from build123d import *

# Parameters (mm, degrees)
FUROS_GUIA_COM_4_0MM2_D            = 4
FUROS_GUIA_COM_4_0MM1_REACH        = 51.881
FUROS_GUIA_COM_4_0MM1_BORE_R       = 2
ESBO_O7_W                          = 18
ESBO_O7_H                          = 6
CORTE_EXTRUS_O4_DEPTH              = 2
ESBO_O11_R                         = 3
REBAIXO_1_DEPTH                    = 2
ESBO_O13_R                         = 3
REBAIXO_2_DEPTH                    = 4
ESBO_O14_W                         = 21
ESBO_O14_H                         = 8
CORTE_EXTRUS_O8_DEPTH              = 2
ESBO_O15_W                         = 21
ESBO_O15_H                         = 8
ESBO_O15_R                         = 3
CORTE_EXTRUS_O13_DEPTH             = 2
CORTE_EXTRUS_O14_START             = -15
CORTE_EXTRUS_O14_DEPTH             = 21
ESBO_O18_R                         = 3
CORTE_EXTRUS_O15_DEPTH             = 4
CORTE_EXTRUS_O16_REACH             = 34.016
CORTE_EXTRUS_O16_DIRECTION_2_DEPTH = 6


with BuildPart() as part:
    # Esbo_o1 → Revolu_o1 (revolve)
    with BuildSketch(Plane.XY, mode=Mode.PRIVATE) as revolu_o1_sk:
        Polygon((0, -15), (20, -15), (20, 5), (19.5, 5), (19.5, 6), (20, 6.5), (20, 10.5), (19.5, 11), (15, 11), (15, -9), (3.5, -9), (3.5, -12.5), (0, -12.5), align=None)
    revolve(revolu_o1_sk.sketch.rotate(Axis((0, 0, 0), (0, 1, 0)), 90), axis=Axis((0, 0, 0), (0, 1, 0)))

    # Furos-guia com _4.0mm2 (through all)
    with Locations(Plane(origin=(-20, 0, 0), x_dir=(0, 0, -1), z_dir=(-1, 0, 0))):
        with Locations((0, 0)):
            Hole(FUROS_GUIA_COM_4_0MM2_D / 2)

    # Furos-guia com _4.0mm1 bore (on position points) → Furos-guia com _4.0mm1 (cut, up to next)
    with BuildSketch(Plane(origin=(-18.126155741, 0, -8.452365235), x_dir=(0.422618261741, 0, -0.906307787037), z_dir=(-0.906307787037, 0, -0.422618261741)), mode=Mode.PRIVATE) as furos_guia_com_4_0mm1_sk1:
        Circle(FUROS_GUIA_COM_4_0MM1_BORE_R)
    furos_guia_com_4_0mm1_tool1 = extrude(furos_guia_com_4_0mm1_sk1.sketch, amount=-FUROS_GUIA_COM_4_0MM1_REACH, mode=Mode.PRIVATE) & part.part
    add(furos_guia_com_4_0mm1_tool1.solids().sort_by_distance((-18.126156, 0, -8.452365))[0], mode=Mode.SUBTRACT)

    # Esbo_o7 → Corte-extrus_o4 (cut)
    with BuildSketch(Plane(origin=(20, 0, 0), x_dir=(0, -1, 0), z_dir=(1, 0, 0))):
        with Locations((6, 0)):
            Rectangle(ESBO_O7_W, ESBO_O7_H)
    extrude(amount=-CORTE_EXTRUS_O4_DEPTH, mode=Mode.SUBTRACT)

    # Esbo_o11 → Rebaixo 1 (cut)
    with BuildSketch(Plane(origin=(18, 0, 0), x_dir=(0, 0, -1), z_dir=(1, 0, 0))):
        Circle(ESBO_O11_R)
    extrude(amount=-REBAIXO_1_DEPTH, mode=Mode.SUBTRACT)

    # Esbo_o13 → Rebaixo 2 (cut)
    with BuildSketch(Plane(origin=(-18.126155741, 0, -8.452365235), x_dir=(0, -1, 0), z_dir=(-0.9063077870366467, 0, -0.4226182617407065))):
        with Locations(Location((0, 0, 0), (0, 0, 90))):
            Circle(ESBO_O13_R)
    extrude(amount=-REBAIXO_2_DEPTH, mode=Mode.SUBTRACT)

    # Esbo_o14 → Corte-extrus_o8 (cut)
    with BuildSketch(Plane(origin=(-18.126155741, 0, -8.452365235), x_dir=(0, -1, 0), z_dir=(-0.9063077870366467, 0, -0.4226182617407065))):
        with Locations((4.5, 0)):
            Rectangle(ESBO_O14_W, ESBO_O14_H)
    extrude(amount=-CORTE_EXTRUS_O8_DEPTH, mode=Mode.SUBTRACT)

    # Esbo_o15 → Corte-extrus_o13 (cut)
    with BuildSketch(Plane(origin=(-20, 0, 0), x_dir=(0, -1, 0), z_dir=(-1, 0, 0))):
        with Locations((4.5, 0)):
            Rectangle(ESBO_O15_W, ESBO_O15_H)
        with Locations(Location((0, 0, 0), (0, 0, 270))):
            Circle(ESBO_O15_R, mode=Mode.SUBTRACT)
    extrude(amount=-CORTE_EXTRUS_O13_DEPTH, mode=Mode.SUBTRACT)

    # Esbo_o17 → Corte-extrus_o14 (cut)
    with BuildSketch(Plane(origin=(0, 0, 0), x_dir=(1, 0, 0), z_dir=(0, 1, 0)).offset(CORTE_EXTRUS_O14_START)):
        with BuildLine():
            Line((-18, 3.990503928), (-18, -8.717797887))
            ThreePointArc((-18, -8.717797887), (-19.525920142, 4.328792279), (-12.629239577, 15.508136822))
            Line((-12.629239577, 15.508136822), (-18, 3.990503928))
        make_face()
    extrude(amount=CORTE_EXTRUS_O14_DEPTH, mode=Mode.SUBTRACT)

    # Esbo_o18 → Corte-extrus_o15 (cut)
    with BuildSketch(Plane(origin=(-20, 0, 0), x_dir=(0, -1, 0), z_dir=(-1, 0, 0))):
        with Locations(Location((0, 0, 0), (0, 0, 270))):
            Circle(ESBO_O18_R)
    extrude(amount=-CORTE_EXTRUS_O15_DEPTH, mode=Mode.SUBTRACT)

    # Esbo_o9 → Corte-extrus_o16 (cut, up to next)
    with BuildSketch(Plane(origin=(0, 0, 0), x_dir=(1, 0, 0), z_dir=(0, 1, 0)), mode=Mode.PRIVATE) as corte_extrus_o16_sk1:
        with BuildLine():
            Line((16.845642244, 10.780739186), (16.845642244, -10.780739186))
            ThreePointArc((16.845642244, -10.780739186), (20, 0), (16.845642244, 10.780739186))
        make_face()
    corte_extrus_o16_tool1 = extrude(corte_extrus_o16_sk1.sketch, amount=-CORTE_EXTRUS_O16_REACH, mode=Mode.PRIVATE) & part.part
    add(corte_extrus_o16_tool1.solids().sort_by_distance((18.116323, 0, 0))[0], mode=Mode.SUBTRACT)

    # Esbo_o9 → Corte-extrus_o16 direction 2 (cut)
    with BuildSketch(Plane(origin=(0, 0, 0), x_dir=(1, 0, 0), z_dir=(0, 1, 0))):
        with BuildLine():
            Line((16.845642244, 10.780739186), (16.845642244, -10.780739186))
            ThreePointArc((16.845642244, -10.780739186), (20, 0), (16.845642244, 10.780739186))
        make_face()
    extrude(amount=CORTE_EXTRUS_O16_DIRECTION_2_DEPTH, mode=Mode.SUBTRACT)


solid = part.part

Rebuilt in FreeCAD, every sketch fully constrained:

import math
import FreeCAD as App
import Part
import Sketcher
Q = App.Units.Quantity

doc = App.newDocument("Part")
params = doc.addObject("Spreadsheet::Sheet", "Params")
for row, (alias, value) in enumerate([
    ("sketch1_width", "20 mm"),
    ("sketch1_height", "1 mm"),
    ("sketch1_height2", "4 mm"),
    ("sketch1_width2", "0.5 mm"),
    ("sketch1_width3", "4.5 mm"),
    ("revolution_angle", "360 deg"),
    ("sketch2_diameter", "4 mm"),
    ("hole_diameter", "4 mm"),
    ("sketch3_diameter", "4 mm"),
    ("sketch4_width", "18 mm"),
    ("sketch4_height", "6 mm"),
    ("pocket2_length", "2 mm"),
    ("sketch5_diameter", "6 mm"),
    ("pocket3_length", "2 mm"),
    ("sketch6_diameter", "6 mm"),
    ("pocket4_length", "4 mm"),
    ("sketch7_width", "21 mm"),
    ("sketch7_height", "8 mm"),
    ("pocket5_length", "2 mm"),
    ("sketch8_diameter", "6 mm"),
    ("sketch8_width", "21 mm"),
    ("sketch8_height", "8 mm"),
    ("pocket6_length", "2 mm"),
    ("sketch9_radius", "20 mm"),
    ("pocket7_length", "21 mm"),
    ("sketch10_diameter", "6 mm"),
    ("pocket8_length", "4 mm"),
    ("sketch11_radius", "20 mm"),
    ("pocket9_length", "15 mm"),
    ("sketch12_radius", "20 mm"),
    ("pocket10_length", "6 mm"),
], start=1):
    params.set(f"A{row}", alias)
    params.set(f"B{row}", "=" + value)
    params.setAlias(f"B{row}", alias)

body = doc.addObject("PartDesign::Body", "Body")

# Sketch on XY plane
sketch1 = body.newObject("Sketcher::SketchObject", "Sketch")
sketch1.AttachmentSupport = (doc.getObject("XY_Plane"), [""])
sketch1.MapMode = "FlatFace"
sketch1.addGeometry([
    Part.LineSegment(App.Vector(0, -15, 0), App.Vector(20, -15, 0)),  # 0
    Part.LineSegment(App.Vector(20, -15, 0), App.Vector(20, 5, 0)),  # 1
    Part.LineSegment(App.Vector(20, 5, 0), App.Vector(19.5, 5, 0)),  # 2
    Part.LineSegment(App.Vector(19.5, 5, 0), App.Vector(19.5, 6, 0)),  # 3
    Part.LineSegment(App.Vector(19.5, 6, 0), App.Vector(20, 6.5, 0)),  # 4
    Part.LineSegment(App.Vector(20, 6.5, 0), App.Vector(20, 10.5, 0)),  # 5
    Part.LineSegment(App.Vector(20, 10.5, 0), App.Vector(19.5, 11, 0)),  # 6
    Part.LineSegment(App.Vector(19.5, 11, 0), App.Vector(15, 11, 0)),  # 7
    Part.LineSegment(App.Vector(15, 11, 0), App.Vector(15, -9, 0)),  # 8
    Part.LineSegment(App.Vector(15, -9, 0), App.Vector(3.5, -9, 0)),  # 9
    Part.LineSegment(App.Vector(3.5, -9, 0), App.Vector(3.5, -12.5, 0)),  # 10
    Part.LineSegment(App.Vector(3.5, -12.5, 0), App.Vector(0, -12.5, 0)),  # 11
    Part.LineSegment(App.Vector(0, -12.5, 0), App.Vector(0, -15, 0)),  # 12
], False)
sketch1.addConstraint([
    Sketcher.Constraint("Coincident", 0, 2, 1, 1),
    Sketcher.Constraint("Coincident", 1, 2, 2, 1),
    Sketcher.Constraint("Coincident", 2, 2, 3, 1),
    Sketcher.Constraint("Coincident", 3, 2, 4, 1),
    Sketcher.Constraint("Coincident", 4, 2, 5, 1),
    Sketcher.Constraint("Coincident", 5, 2, 6, 1),
    Sketcher.Constraint("Coincident", 6, 2, 7, 1),
    Sketcher.Constraint("Coincident", 7, 2, 8, 1),
    Sketcher.Constraint("Coincident", 8, 2, 9, 1),
    Sketcher.Constraint("Coincident", 9, 2, 10, 1),
    Sketcher.Constraint("Coincident", 10, 2, 11, 1),
    Sketcher.Constraint("Coincident", 11, 2, 12, 1),
    Sketcher.Constraint("Coincident", 12, 2, 0, 1),
    Sketcher.Constraint("Horizontal", 0),
    Sketcher.Constraint("Vertical", 1),
    Sketcher.Constraint("Horizontal", 2),
    Sketcher.Constraint("Vertical", 3),
    Sketcher.Constraint("Vertical", 5),
    Sketcher.Constraint("Horizontal", 7),
    Sketcher.Constraint("Vertical", 8),
    Sketcher.Constraint("Horizontal", 9),
    Sketcher.Constraint("Vertical", 10),
    Sketcher.Constraint("Horizontal", 11),
    Sketcher.Constraint("Vertical", 12),
    Sketcher.Constraint("PointOnObject", 11, 2, -2),
    Sketcher.Constraint("Perpendicular", 4, 6),
    Sketcher.Constraint("Vertical", 1, 2, 4, 2),
    Sketcher.Constraint("Vertical", 3, 2, 6, 2),
    Sketcher.Constraint("Equal", 0, 1),
    Sketcher.Constraint("Equal", 1, 8),
    Sketcher.Constraint("Equal", 11, 10),
    Sketcher.Constraint("Equal", 4, 6),
    Sketcher.Constraint("DistanceX", 0, 1, 0, 2, Q("20 mm")),
    Sketcher.Constraint("DistanceY", 3, 1, 3, 2, Q("1 mm")),
    Sketcher.Constraint("DistanceY", 5, 1, 5, 2, Q("4 mm")),
    Sketcher.Constraint("DistanceX", 2, 2, 2, 1, Q("0.5 mm")),
    Sketcher.Constraint("DistanceX", 7, 2, 7, 1, Q("4.5 mm")),
    Sketcher.Constraint("DistanceX", 9, 2, 9, 1, Q("11.5 mm")),
    Sketcher.Constraint("DistanceY", 0, 2, -1, 1, Q("15 mm")),
])
sketch1.setExpression("Constraints[32]", "Params.sketch1_width")
sketch1.setExpression("Constraints[33]", "Params.sketch1_height")
sketch1.setExpression("Constraints[34]", "Params.sketch1_height2")
sketch1.setExpression("Constraints[35]", "Params.sketch1_width2")
sketch1.setExpression("Constraints[36]", "Params.sketch1_width3")
revolution = body.newObject("PartDesign::Revolution", "Revolution")
revolution.Profile = sketch1
revolution.ReferenceAxis = (sketch1, ["V_Axis"])
revolution.setExpression("Angle", "Params.revolution_angle")

# Sketch on YZ plane
sketch2 = body.newObject("Sketcher::SketchObject", "Sketch001")
sketch2.AttachmentSupport = (doc.getObject("YZ_Plane"), [""])
sketch2.MapMode = "FlatFace"
sketch2.AttachmentOffset = App.Placement(App.Vector(0, 0, -20), App.Rotation())
sketch2.addGeometry(Part.Circle(App.Vector(0, 0, 0), App.Vector(0, 0, 1), 2), False)
sketch2.addConstraint([
    Sketcher.Constraint("Coincident", 0, 3, -1, 1),
    Sketcher.Constraint("Diameter", 0, Q("4 mm")),
])
sketch2.setExpression("Constraints[1]", "Params.sketch2_diameter")
doc.recompute()
hole = body.newObject("PartDesign::Hole", "Hole")
hole.Profile = sketch2
hole.ThreadType = "None"
hole.setExpression("Diameter", "Params.hole_diameter")
hole.DepthType = "ThroughAll"
hole.Reversed = True

# Sketch on an angled plane
sketch3 = body.newObject("Sketcher::SketchObject", "Sketch002")
sketch3.Placement = App.Placement(App.Vector(-18.126156, 0, -8.452365), App.Rotation(App.Vector(0.422618262, 0, -0.906307787), App.Vector(0, -1, 0), App.Vector(-0.906307787, 0, -0.422618262), "ZXY"))
sketch3.addGeometry(Part.Circle(App.Vector(0, 0, 0), App.Vector(0, 0, 1), 2), False)
sketch3.addConstraint([
    Sketcher.Constraint("Coincident", 0, 3, -1, 1),
    Sketcher.Constraint("Diameter", 0, Q("4 mm")),
])
sketch3.setExpression("Constraints[1]", "Params.sketch3_diameter")
pocket1 = body.newObject("PartDesign::Pocket", "Pocket")
pocket1.Profile = sketch3
pocket1.Type = "UpToFirst"

# Sketch on YZ plane
sketch4 = body.newObject("Sketcher::SketchObject", "Sketch003")
sketch4.AttachmentSupport = (doc.getObject("YZ_Plane"), [""])
sketch4.MapMode = "FlatFace"
sketch4.AttachmentOffset = App.Placement(App.Vector(0, 0, 20), App.Rotation())
sketch4.addGeometry([
    Part.LineSegment(App.Vector(3, -3, 0), App.Vector(3, 3, 0)),
    Part.LineSegment(App.Vector(3, 3, 0), App.Vector(-15, 3, 0)),
    Part.LineSegment(App.Vector(-15, 3, 0), App.Vector(-15, -3, 0)),
    Part.LineSegment(App.Vector(-15, -3, 0), App.Vector(3, -3, 0)),
], False)
sketch4.addConstraint([
    Sketcher.Constraint("Coincident", 0, 2, 1, 1),
    Sketcher.Constraint("Coincident", 1, 2, 2, 1),
    Sketcher.Constraint("Coincident", 2, 2, 3, 1),
    Sketcher.Constraint("Coincident", 3, 2, 0, 1),
    Sketcher.Constraint("Vertical", 0),
    Sketcher.Constraint("Horizontal", 1),
    Sketcher.Constraint("Vertical", 2),
    Sketcher.Constraint("Horizontal", 3),
    Sketcher.Constraint("DistanceX", 1, 2, 1, 1, Q("18 mm")),
    Sketcher.Constraint("DistanceY", 0, 1, 0, 2, Q("6 mm")),
    Sketcher.Constraint("DistanceX", -1, 1, 0, 2, Q("3 mm")),
    Sketcher.Constraint("DistanceY", -1, 1, 0, 2, Q("3 mm")),
])
sketch4.setExpression("Constraints[8]", "Params.sketch4_width")
sketch4.setExpression("Constraints[9]", "Params.sketch4_height")
pocket2 = body.newObject("PartDesign::Pocket", "Pocket001")
pocket2.Profile = sketch4
pocket2.setExpression("Length", "Params.pocket2_length")

# Sketch on YZ plane
sketch5 = body.newObject("Sketcher::SketchObject", "Sketch004")
sketch5.AttachmentSupport = (doc.getObject("YZ_Plane"), [""])
sketch5.MapMode = "FlatFace"
sketch5.AttachmentOffset = App.Placement(App.Vector(0, 0, 18), App.Rotation())
sketch5.addGeometry(Part.Circle(App.Vector(0, 0, 0), App.Vector(0, 0, 1), 3), False)
sketch5.addConstraint([
    Sketcher.Constraint("Coincident", 0, 3, -1, 1),
    Sketcher.Constraint("Diameter", 0, Q("6 mm")),
])
sketch5.setExpression("Constraints[1]", "Params.sketch5_diameter")
pocket3 = body.newObject("PartDesign::Pocket", "Pocket002")
pocket3.Profile = sketch5
pocket3.setExpression("Length", "Params.pocket3_length")

# Sketch on an angled plane
sketch6 = body.newObject("Sketcher::SketchObject", "Sketch005")
sketch6.Placement = App.Placement(App.Vector(-18.126156, 0, -8.452365), App.Rotation(App.Vector(0, -1, 0), App.Vector(-0.422618262, 0, 0.906307787), App.Vector(-0.906307787, 0, -0.422618262), "ZXY"))
sketch6.addGeometry(Part.Circle(App.Vector(0, 0, 0), App.Vector(0, 0, 1), 3), False)
sketch6.addConstraint([
    Sketcher.Constraint("Coincident", 0, 3, -1, 1),
    Sketcher.Constraint("Diameter", 0, Q("6 mm")),
])
sketch6.setExpression("Constraints[1]", "Params.sketch6_diameter")
pocket4 = body.newObject("PartDesign::Pocket", "Pocket003")
pocket4.Profile = sketch6
pocket4.setExpression("Length", "Params.pocket4_length")

# Sketch on an angled plane
sketch7 = body.newObject("Sketcher::SketchObject", "Sketch006")
sketch7.Placement = App.Placement(App.Vector(-18.126156, 0, -8.452365), App.Rotation(App.Vector(0, -1, 0), App.Vector(-0.422618262, 0, 0.906307787), App.Vector(-0.906307787, 0, -0.422618262), "ZXY"))
sketch7.addGeometry([
    Part.LineSegment(App.Vector(-6, 4, 0), App.Vector(-6, -4, 0)),
    Part.LineSegment(App.Vector(-6, -4, 0), App.Vector(15, -4, 0)),
    Part.LineSegment(App.Vector(15, -4, 0), App.Vector(15, 4, 0)),
    Part.LineSegment(App.Vector(15, 4, 0), App.Vector(-6, 4, 0)),
], False)
sketch7.addConstraint([
    Sketcher.Constraint("Coincident", 0, 2, 1, 1),
    Sketcher.Constraint("Coincident", 1, 2, 2, 1),
    Sketcher.Constraint("Coincident", 2, 2, 3, 1),
    Sketcher.Constraint("Coincident", 3, 2, 0, 1),
    Sketcher.Constraint("Vertical", 0),
    Sketcher.Constraint("Horizontal", 1),
    Sketcher.Constraint("Vertical", 2),
    Sketcher.Constraint("Horizontal", 3),
    Sketcher.Constraint("DistanceX", 1, 1, 1, 2, Q("21 mm")),
    Sketcher.Constraint("DistanceY", 0, 2, 0, 1, Q("8 mm")),
    Sketcher.Constraint("DistanceX", 0, 2, -1, 1, Q("6 mm")),
    Sketcher.Constraint("DistanceY", 0, 2, -1, 1, Q("4 mm")),
])
sketch7.setExpression("Constraints[8]", "Params.sketch7_width")
sketch7.setExpression("Constraints[9]", "Params.sketch7_height")
pocket5 = body.newObject("PartDesign::Pocket", "Pocket004")
pocket5.Profile = sketch7
pocket5.setExpression("Length", "Params.pocket5_length")

# Sketch on YZ plane
sketch8 = body.newObject("Sketcher::SketchObject", "Sketch007")
sketch8.AttachmentSupport = (doc.getObject("YZ_Plane"), [""])
sketch8.MapMode = "FlatFace"
sketch8.AttachmentOffset = App.Placement(App.Vector(0, 0, -20), App.Rotation())
sketch8.addGeometry([
    Part.LineSegment(App.Vector(6, 4, 0), App.Vector(6, -4, 0)),  # 0
    Part.LineSegment(App.Vector(6, -4, 0), App.Vector(-15, -4, 0)),  # 1
    Part.LineSegment(App.Vector(-15, -4, 0), App.Vector(-15, 4, 0)),  # 2
    Part.LineSegment(App.Vector(-15, 4, 0), App.Vector(6, 4, 0)),  # 3
    Part.Circle(App.Vector(0, 0, 0), App.Vector(0, 0, 1), 3),  # 4
], False)
sketch8.addConstraint([
    Sketcher.Constraint("Coincident", 0, 2, 1, 1),
    Sketcher.Constraint("Coincident", 1, 2, 2, 1),
    Sketcher.Constraint("Coincident", 2, 2, 3, 1),
    Sketcher.Constraint("Coincident", 3, 2, 0, 1),
    Sketcher.Constraint("Vertical", 0),
    Sketcher.Constraint("Horizontal", 1),
    Sketcher.Constraint("Vertical", 2),
    Sketcher.Constraint("Horizontal", 3),
    Sketcher.Constraint("Coincident", 4, 3, -1, 1),
    Sketcher.Constraint("Diameter", 4, Q("6 mm")),
    Sketcher.Constraint("DistanceX", 1, 2, 1, 1, Q("21 mm")),
    Sketcher.Constraint("DistanceY", 0, 2, 0, 1, Q("8 mm")),
    Sketcher.Constraint("DistanceX", -1, 1, 0, 2, Q("6 mm")),
    Sketcher.Constraint("DistanceY", 0, 2, -1, 1, Q("4 mm")),
])
sketch8.setExpression("Constraints[9]", "Params.sketch8_diameter")
sketch8.setExpression("Constraints[10]", "Params.sketch8_width")
sketch8.setExpression("Constraints[11]", "Params.sketch8_height")
pocket6 = body.newObject("PartDesign::Pocket", "Pocket005")
pocket6.Profile = sketch8
pocket6.setExpression("Length", "Params.pocket6_length")
pocket6.Reversed = True

# Sketch on XZ plane
sketch9 = body.newObject("Sketcher::SketchObject", "Sketch008")
sketch9.AttachmentSupport = (doc.getObject("XZ_Plane"), [""])
sketch9.MapMode = "FlatFace"
sketch9.AttachmentOffset = App.Placement(App.Vector(0, 0, 15), App.Rotation())
sketch9.addGeometry([
    Part.LineSegment(App.Vector(-18, 9, 0), App.Vector(-18, -4, 0)),
    Part.LineSegment(App.Vector(-18, -4, 0), App.Vector(-13, -16, 0)),
    Part.ArcOfCircle(Part.Circle(App.Vector(0, 0, 0), App.Vector(0, 0, 1), 20), math.radians(154), math.radians(231)),
], False)
sketch9.addConstraint([
    Sketcher.Constraint("Coincident", 0, 2, 1, 1),
    Sketcher.Constraint("Coincident", 1, 2, 2, 2),
    Sketcher.Constraint("Coincident", 2, 1, 0, 1),
    Sketcher.Constraint("Vertical", 0),
    Sketcher.Constraint("Coincident", 2, 3, -1, 1),
    Sketcher.Constraint("Radius", 2, Q("20 mm")),
    Sketcher.Constraint("Angle", 1, Q("-65 deg")),
    Sketcher.Constraint("DistanceX", 0, 2, -1, 1, Q("18 mm")),
    Sketcher.Constraint("DistanceY", 0, 2, 0, 1, Q("12.708302 mm")),
])
sketch9.setExpression("Constraints[5]", "Params.sketch9_radius")
pocket7 = body.newObject("PartDesign::Pocket", "Pocket006")
pocket7.Profile = sketch9
pocket7.setExpression("Length", "Params.pocket7_length")

# Sketch on YZ plane
sketch10 = body.newObject("Sketcher::SketchObject", "Sketch009")
sketch10.AttachmentSupport = (doc.getObject("YZ_Plane"), [""])
sketch10.MapMode = "FlatFace"
sketch10.AttachmentOffset = App.Placement(App.Vector(0, 0, -20), App.Rotation())
sketch10.addGeometry(Part.Circle(App.Vector(0, 0, 0), App.Vector(0, 0, 1), 3), False)
sketch10.addConstraint([
    Sketcher.Constraint("Coincident", 0, 3, -1, 1),
    Sketcher.Constraint("Diameter", 0, Q("6 mm")),
])
sketch10.setExpression("Constraints[1]", "Params.sketch10_diameter")
pocket8 = body.newObject("PartDesign::Pocket", "Pocket007")
pocket8.Profile = sketch10
pocket8.setExpression("Length", "Params.pocket8_length")
pocket8.Reversed = True

# Sketch on XZ plane
sketch11 = body.newObject("Sketcher::SketchObject", "Sketch010")
sketch11.AttachmentSupport = (doc.getObject("XZ_Plane"), [""])
sketch11.MapMode = "FlatFace"
sketch11.addGeometry([
    Part.LineSegment(App.Vector(17, -11, 0), App.Vector(17, 11, 0)),
    Part.ArcOfCircle(Part.Circle(App.Vector(0, 0, 0), App.Vector(0, 0, 1), 20), math.radians(-33), math.radians(33)),
], False)
sketch11.addConstraint([
    Sketcher.Constraint("Coincident", 0, 1, 1, 1),
    Sketcher.Constraint("Coincident", 1, 2, 0, 2),
    Sketcher.Constraint("Vertical", 0),
    Sketcher.Constraint("Coincident", 1, 3, -1, 1),
    Sketcher.Constraint("Radius", 1, Q("20 mm")),
    Sketcher.Constraint("DistanceY", 0, 1, 0, 2, Q("21.561478 mm")),
])
sketch11.setExpression("Constraints[4]", "Params.sketch11_radius")
pocket9 = body.newObject("PartDesign::Pocket", "Pocket008")
pocket9.Profile = sketch11
pocket9.setExpression("Length", "Params.pocket9_length")
pocket9.Reversed = True

# Sketch on XZ plane
sketch12 = body.newObject("Sketcher::SketchObject", "Sketch011")
sketch12.AttachmentSupport = (doc.getObject("XZ_Plane"), [""])
sketch12.MapMode = "FlatFace"
sketch12.addGeometry([
    Part.LineSegment(App.Vector(17, -11, 0), App.Vector(17, 11, 0)),
    Part.ArcOfCircle(Part.Circle(App.Vector(0, 0, 0), App.Vector(0, 0, 1), 20), math.radians(-33), math.radians(33)),
], False)
sketch12.addConstraint([
    Sketcher.Constraint("Coincident", 0, 1, 1, 1),
    Sketcher.Constraint("Coincident", 1, 2, 0, 2),
    Sketcher.Constraint("Vertical", 0),
    Sketcher.Constraint("Coincident", 1, 3, -1, 1),
    Sketcher.Constraint("Radius", 1, Q("20 mm")),
    Sketcher.Constraint("DistanceY", 0, 1, 0, 2, Q("21.561478 mm")),
])
sketch12.setExpression("Constraints[4]", "Params.sketch12_radius")
pocket10 = body.newObject("PartDesign::Pocket", "Pocket009")
pocket10.Profile = sketch12
pocket10.setExpression("Length", "Params.pocket10_length")

doc.recompute()
